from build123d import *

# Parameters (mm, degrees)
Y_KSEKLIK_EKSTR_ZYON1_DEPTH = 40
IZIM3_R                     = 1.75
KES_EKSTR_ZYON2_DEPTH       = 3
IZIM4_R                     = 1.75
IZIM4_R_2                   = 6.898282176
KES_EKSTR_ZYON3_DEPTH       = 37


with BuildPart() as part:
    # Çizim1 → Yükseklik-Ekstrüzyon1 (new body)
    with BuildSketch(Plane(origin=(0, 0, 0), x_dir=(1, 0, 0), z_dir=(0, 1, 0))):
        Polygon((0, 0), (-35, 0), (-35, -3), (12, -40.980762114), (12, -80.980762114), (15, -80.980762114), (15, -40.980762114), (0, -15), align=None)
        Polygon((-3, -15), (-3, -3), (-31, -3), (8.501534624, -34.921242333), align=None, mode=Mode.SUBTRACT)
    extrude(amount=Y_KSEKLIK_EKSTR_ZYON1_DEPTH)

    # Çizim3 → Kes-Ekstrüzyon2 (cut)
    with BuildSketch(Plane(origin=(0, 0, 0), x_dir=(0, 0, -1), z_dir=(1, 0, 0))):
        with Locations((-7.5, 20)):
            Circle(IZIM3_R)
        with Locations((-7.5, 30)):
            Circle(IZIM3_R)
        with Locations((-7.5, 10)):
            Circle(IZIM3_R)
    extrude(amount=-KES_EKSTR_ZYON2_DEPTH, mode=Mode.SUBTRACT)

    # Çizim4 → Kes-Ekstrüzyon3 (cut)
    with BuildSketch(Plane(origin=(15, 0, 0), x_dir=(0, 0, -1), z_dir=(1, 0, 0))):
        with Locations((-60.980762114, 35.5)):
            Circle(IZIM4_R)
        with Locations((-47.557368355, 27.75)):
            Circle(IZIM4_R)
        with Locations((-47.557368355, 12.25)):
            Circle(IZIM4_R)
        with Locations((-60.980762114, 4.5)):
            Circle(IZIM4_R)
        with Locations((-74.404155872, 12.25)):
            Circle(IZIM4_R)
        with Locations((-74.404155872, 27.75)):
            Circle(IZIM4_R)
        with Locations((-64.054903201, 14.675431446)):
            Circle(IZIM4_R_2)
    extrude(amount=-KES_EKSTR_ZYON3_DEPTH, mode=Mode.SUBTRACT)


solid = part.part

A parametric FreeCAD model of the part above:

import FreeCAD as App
import Part
import Sketcher
from FreeCAD import Vector
Q = App.Units.Quantity


def add_polygon(sketch, points):
    """Adds a closed chain of lines whose ends are joined by coincident constraints."""
    first, n = sketch.GeometryCount, len(points)
    for a, b in zip(points, points[1:] + points[:1]):
        sketch.addGeometry(Part.LineSegment(App.Vector(*a, 0), App.Vector(*b, 0)), False)
    for i in range(n):
        sketch.addConstraint(Sketcher.Constraint("Coincident", first + i, 2, first + (i + 1) % n, 1))

doc = App.newDocument("Part")
body = doc.addObject("PartDesign::Body", "Body")

sketch1 = doc.addObject("Sketcher::SketchObject", "Sketch")
body.addObject(sketch1)
sketch1.AttachmentSupport = (doc.XZ_Plane, [""])
sketch1.MapMode = "FlatFace"
add_polygon(sketch1, [(0, 0), (-35, 0), (-35, 3), (12, 41), (12, 81), (15, 81), (15, 41), (0, 15)])
add_polygon(sketch1, [(-3, 3), (-3, 15), (8.5, 34.9), (-31, 3)])
sketch1.addConstraint(Sketcher.Constraint("Horizontal", 0))
sketch1.addConstraint(Sketcher.Constraint("Vertical", 1))
sketch1.addConstraint(Sketcher.Constraint("Vertical", 3))
sketch1.addConstraint(Sketcher.Constraint("Horizontal", 4))
sketch1.addConstraint(Sketcher.Constraint("Vertical", 5))
sketch1.addConstraint(Sketcher.Constraint("Vertical", 7))
sketch1.addConstraint(Sketcher.Constraint("Vertical", 8))
sketch1.addConstraint(Sketcher.Constraint("Horizontal", 11))
sketch1.addConstraint(Sketcher.Constraint("Coincident", 7, 2, -1, 1))
sketch1.addConstraint(Sketcher.Constraint("Parallel", 6, 9))
sketch1.addConstraint(Sketcher.Constraint("Parallel", 2, 10))
sketch1.addConstraint(Sketcher.Constraint("Horizontal", 2, 2, 5, 2))
sketch1.addConstraint(Sketcher.Constraint("Horizontal", 6, 2, 8, 2))
sketch1.addConstraint(Sketcher.Constraint("Horizontal", 1, 2, 10, 2))
sketch1.addConstraint(Sketcher.Constraint("Equal", 4, 1))
sketch1.addConstraint(Sketcher.Constraint("DistanceX", 0, 2, 0, 1, 35.0))
sketch1.addConstraint(Sketcher.Constraint("DistanceX", 4, 1, 4, 2, 3.0))
sketch1.addConstraint(Sketcher.Constraint("DistanceX", 11, 1, 11, 2, 28.0))
sketch1.addConstraint(Sketcher.Constraint("DistanceY", 3, 1, 3, 2, 40.0))
sketch1.addConstraint(Sketcher.Constraint("DistanceY", 7, 2, 7, 1, 15.0))
sketch1.addConstraint(Sketcher.Constraint("Angle", 6, Q("-120 deg")))
sketch1.addConstraint(Sketcher.Constraint("Distance", 6, 30.0))
sketch1.addConstraint(Sketcher.Constraint("DistanceX", 8, 2, -1, 1, 3.0))
pad1 = doc.addObject("PartDesign::Pad", "Pad")
body.addObject(pad1)
pad1.Profile = sketch1
pad1.Length = 40
pad1.Reversed = True

sketch2 = doc.addObject("Sketcher::SketchObject", "Sketch001")
body.addObject(sketch2)
sketch2.AttachmentSupport = (doc.YZ_Plane, [""])
sketch2.MapMode = "FlatFace"
sketch2.addGeometry(Part.Circle(Vector(20, 7.5, 0), Vector(0, 0, 1), 1.8), False)
sketch2.addGeometry(Part.Circle(Vector(30, 7.5, 0), Vector(0, 0, 1), 1.8), False)
sketch2.addGeometry(Part.Circle(Vector(10, 7.5, 0), Vector(0, 0, 1), 1.8), False)
sketch2.addConstraint(Sketcher.Constraint("Equal", 0, 1))
sketch2.addConstraint(Sketcher.Constraint("Equal", 1, 2))
sketch2.addConstraint(Sketcher.Constraint("Horizontal", 0, 3, 1, 3))
sketch2.addConstraint(Sketcher.Constraint("Horizontal", 1, 3, 2, 3))
sketch2.addConstraint(Sketcher.Constraint("Diameter", 0, 3.5))
sketch2.addConstraint(Sketcher.Constraint("DistanceX", -1, 1, 0, 3, 20.0))
sketch2.addConstraint(Sketcher.Constraint("DistanceX", -1, 1, 1, 3, 30.0))
sketch2.addConstraint(Sketcher.Constraint("DistanceX", -1, 1, 2, 3, 10.0))
sketch2.addConstraint(Sketcher.Constraint("DistanceY", -1, 1, 0, 3, 7.5))
pocket1 = doc.addObject("PartDesign::Pocket", "Pocket")
body.addObject(pocket1)
pocket1.Profile = sketch2
pocket1.Length = 3

sketch3 = doc.addObject("Sketcher::SketchObject", "Sketch002")
body.addObject(sketch3)
sketch3.AttachmentSupport = (doc.YZ_Plane, [""])
sketch3.MapMode = "FlatFace"
sketch3.AttachmentOffset = App.Placement(Vector(0, 0, 15), App.Rotation())
sketch3.addGeometry(Part.Circle(Vector(35.5, 61, 0), Vector(0, 0, 1), 1.8), False)
sketch3.addGeometry(Part.Circle(Vector(27.8, 47.6, 0), Vector(0, 0, 1), 1.8), False)
sketch3.addGeometry(Part.Circle(Vector(12.2, 47.6, 0), Vector(0, 0, 1), 1.8), False)
sketch3.addGeometry(Part.Circle(Vector(4.5, 61, 0), Vector(0, 0, 1), 1.8), False)
sketch3.addGeometry(Part.Circle(Vector(12.2, 74.4, 0), Vector(0, 0, 1), 1.8), False)
sketch3.addGeometry(Part.Circle(Vector(27.8, 74.4, 0), Vector(0, 0, 1), 1.8), False)
sketch3.addGeometry(Part.Circle(Vector(14.7, 64.1, 0), Vector(0, 0, 1), 6.9), False)
sketch3.addConstraint(Sketcher.Constraint("Equal", 0, 1))
sketch3.addConstraint(Sketcher.Constraint("Equal", 1, 2))
sketch3.addConstraint(Sketcher.Constraint("Equal", 2, 3))
sketch3.addConstraint(Sketcher.Constraint("Equal", 3, 4))
sketch3.addConstraint(Sketcher.Constraint("Equal", 4, 5))
sketch3.addConstraint(Sketcher.Constraint("Horizontal", 1, 3, 2, 3))
sketch3.addConstraint(Sketcher.Constraint("Horizontal", 0, 3, 3, 3))
sketch3.addConstraint(Sketcher.Constraint("Horizontal", 4, 3, 5, 3))
sketch3.addConstraint(Sketcher.Constraint("Vertical", 2, 3, 4, 3))
sketch3.addConstraint(Sketcher.Constraint("Vertical", 1, 3, 5, 3))
sketch3.addConstraint(Sketcher.Constraint("Diameter", 0, 3.5))
sketch3.addConstraint(Sketcher.Constraint("DistanceX", 3, 3, 0, 3, 31.0))
sketch3.addConstraint(Sketcher.Constraint("DistanceX", -1, 1, 0, 3, 35.5))
sketch3.addConstraint(Sketcher.Constraint("DistanceX", 2, 3, 1, 3, 15.5))
sketch3.addConstraint(Sketcher.Constraint("DistanceX", -1, 1, 1, 3, 27.75))
sketch3.addConstraint(Sketcher.Constraint("Diameter", 6, 13.796564))
sketch3.addConstraint(Sketcher.Constraint("DistanceY", -1, 1, 1, 3, 47.557368))
sketch3.addConstraint(Sketcher.Constraint("DistanceX", -1, 1, 6, 3, 14.675431))
sketch3.addConstraint(Sketcher.Constraint("DistanceY", 3, 3, 6, 3, 3.074141))
sketch3.addConstraint(Sketcher.Constraint("DistanceY", -1, 1, 0, 3, 60.980762))
sketch3.addConstraint(Sketcher.Constraint("DistanceY", -1, 1, 4, 3, 74.404156))
pocket2 = doc.addObject("PartDesign::Pocket", "Pocket001")
body.addObject(pocket2)
pocket2.Profile = sketch3
pocket2.Length = 37

doc.recompute()
